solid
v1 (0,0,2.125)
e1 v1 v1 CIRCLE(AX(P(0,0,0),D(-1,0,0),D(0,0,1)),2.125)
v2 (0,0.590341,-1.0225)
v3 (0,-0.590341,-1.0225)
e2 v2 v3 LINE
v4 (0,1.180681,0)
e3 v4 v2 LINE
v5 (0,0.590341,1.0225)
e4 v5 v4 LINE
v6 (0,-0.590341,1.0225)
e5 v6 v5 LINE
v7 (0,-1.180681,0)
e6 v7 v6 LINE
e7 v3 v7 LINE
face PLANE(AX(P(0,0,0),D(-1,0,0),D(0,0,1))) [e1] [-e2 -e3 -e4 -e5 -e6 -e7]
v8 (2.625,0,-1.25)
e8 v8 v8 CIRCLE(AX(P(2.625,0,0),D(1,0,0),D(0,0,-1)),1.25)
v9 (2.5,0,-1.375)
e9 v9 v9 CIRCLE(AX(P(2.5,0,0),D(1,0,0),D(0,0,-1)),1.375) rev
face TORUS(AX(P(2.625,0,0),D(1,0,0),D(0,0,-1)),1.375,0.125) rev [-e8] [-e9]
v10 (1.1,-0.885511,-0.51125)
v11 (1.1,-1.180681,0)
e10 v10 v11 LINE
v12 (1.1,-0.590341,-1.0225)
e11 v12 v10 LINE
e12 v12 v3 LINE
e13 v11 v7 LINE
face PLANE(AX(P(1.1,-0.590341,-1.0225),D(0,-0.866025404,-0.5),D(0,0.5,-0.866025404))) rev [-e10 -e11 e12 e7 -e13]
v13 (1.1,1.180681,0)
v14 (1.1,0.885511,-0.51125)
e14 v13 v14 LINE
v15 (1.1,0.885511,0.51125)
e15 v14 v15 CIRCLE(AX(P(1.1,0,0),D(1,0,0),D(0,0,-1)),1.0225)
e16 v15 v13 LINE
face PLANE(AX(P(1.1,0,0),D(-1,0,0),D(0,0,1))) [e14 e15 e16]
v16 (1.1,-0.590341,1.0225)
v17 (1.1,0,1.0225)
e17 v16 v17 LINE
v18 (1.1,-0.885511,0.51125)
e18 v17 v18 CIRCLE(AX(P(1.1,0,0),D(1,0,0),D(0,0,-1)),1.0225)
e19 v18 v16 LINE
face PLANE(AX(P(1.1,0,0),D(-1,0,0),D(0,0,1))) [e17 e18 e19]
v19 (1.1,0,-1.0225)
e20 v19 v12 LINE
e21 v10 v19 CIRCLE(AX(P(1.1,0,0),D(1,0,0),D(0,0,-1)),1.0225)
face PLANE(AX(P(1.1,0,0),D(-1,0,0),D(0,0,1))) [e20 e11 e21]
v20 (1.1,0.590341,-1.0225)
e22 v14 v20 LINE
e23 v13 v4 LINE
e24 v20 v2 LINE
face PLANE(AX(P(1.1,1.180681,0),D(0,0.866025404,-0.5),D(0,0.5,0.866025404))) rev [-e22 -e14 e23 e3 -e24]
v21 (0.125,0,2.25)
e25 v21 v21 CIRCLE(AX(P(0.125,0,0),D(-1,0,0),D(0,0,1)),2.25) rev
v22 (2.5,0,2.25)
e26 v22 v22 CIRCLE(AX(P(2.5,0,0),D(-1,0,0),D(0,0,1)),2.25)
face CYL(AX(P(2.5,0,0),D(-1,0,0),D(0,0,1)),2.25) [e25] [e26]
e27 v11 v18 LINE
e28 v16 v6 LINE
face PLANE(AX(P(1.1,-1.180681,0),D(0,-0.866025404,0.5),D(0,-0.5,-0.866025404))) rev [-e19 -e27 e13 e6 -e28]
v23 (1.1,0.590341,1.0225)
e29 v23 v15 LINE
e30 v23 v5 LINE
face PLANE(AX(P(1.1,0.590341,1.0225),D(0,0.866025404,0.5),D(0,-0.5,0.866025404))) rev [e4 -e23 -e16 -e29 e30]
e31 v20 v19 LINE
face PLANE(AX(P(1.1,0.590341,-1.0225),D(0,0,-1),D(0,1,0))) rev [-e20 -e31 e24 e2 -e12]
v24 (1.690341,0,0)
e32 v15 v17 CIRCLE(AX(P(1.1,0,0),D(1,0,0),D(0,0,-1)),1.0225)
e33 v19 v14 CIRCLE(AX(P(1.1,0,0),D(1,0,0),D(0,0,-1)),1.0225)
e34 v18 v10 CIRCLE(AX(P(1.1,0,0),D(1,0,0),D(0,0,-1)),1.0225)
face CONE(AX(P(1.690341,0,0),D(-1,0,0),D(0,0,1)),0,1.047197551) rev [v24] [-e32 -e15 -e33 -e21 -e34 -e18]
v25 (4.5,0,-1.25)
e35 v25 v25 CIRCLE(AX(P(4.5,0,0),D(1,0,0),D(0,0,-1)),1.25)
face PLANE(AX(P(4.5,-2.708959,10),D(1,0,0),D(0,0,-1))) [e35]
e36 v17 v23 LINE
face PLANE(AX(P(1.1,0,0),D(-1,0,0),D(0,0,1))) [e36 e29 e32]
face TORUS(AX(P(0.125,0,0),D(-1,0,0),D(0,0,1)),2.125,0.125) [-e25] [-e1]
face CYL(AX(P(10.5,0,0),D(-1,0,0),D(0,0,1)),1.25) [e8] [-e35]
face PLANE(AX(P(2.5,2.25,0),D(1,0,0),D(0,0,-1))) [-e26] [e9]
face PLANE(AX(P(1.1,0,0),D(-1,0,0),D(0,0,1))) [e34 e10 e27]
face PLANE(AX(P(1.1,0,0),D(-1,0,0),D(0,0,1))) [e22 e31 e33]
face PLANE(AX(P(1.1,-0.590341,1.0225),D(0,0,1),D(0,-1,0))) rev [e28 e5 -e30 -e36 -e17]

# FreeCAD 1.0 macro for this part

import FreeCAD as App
import Part
import Sketcher
from FreeCAD import Vector
Q = App.Units.Quantity


def edges_at(feature, points):
    """Names of the edges that pass closest to the given points."""
    edges = feature.Shape.Edges
    near = lambda p: min(range(len(edges)), key=lambda i: edges[i].distToShape(Part.Vertex(*p))[0])
    return sorted({f"Edge{near(p) + 1}" for p in points})

doc = App.newDocument("Part")
body = doc.addObject("PartDesign::Body", "Body")

sketch1 = body.newObject("Sketcher::SketchObject", "Sketch")
sketch1.AttachmentSupport = (doc.getObject("XY_Plane"), [""])
sketch1.MapMode = "FlatFace"
sketch1.addGeometry(Part.LineSegment(Vector(2.5, 2.2, 0), Vector(2.5, 0, 0)), False)
sketch1.addGeometry(Part.LineSegment(Vector(2.5, 0, 0), Vector(0, 0, 0)), False)
sketch1.addGeometry(Part.LineSegment(Vector(0, 0, 0), Vector(0, 2.2, 0)), False)
sketch1.addGeometry(Part.LineSegment(Vector(0, 2.2, 0), Vector(2.5, 2.2, 0)), False)
sketch1.addConstraint(Sketcher.Constraint("Coincident", 0, 2, 1, 1))
sketch1.addConstraint(Sketcher.Constraint("Coincident", 1, 2, 2, 1))
sketch1.addConstraint(Sketcher.Constraint("Coincident", 2, 2, 3, 1))
sketch1.addConstraint(Sketcher.Constraint("Coincident", 3, 2, 0, 1))
sketch1.addConstraint(Sketcher.Constraint("Vertical", 0))
sketch1.addConstraint(Sketcher.Constraint("Horizontal", 1))
sketch1.addConstraint(Sketcher.Constraint("Vertical", 2))
sketch1.addConstraint(Sketcher.Constraint("Horizontal", 3))
sketch1.addConstraint(Sketcher.Constraint("Coincident", 1, 2, -1, 1))
sketch1.addConstraint(Sketcher.Constraint("DistanceX", 1, 2, 1, 1, Q("2.5 mm")))
sketch1.addConstraint(Sketcher.Constraint("DistanceY", 0, 2, 0, 1, Q("2.25 mm")))
revolution = body.newObject("PartDesign::Revolution", "Revolution")
revolution.Profile = sketch1
revolution.ReferenceAxis = (sketch1, ["H_Axis"])
revolution.Angle = 360

sketch2 = body.newObject("Sketcher::SketchObject", "Sketch001")
sketch2.AttachmentSupport = (doc.getObject("YZ_Plane"), [""])
sketch2.MapMode = "FlatFace"
sketch2.AttachmentOffset = App.Placement(Vector(0, 0, 2.5), App.Rotation())
sketch2.addGeometry(Part.Circle(Vector(0, 0, 0), Vector(0, 0, 1), 1.2), False)
sketch2.addConstraint(Sketcher.Constraint("Coincident", 0, 3, -1, 1))
sketch2.addConstraint(Sketcher.Constraint("Diameter", 0, Q("2.5 mm")))
pad1 = body.newObject("PartDesign::Pad", "Pad")
pad1.Profile = sketch2
pad1.Length = 8

sketch3 = body.newObject("Sketcher::SketchObject", "Sketch002")
sketch3.AttachmentSupport = (doc.getObject("YZ_Plane"), [""])
sketch3.MapMode = "FlatFace"
sketch3.addGeometry(Part.LineSegment(Vector(-0.6, -1, 0), Vector(-1.2, 0, 0)), False)
sketch3.addGeometry(Part.LineSegment(Vector(-1.2, 0, 0), Vector(-0.6, 1, 0)), False)
sketch3.addGeometry(Part.LineSegment(Vector(-0.6, 1, 0), Vector(0.6, 1, 0)), False)
sketch3.addGeometry(Part.LineSegment(Vector(0.6, 1, 0), Vector(1.2, 0, 0)), False)
sketch3.addGeometry(Part.LineSegment(Vector(1.2, 0, 0), Vector(0.6, -1, 0)), False)
sketch3.addGeometry(Part.LineSegment(Vector(0.6, -1, 0), Vector(-0.6, -1, 0)), False)
sketch3.addConstraint(Sketcher.Constraint("Coincident", 0, 2, 1, 1))
sketch3.addConstraint(Sketcher.Constraint("Coincident", 1, 2, 2, 1))
sketch3.addConstraint(Sketcher.Constraint("Coincident", 2, 2, 3, 1))
sketch3.addConstraint(Sketcher.Constraint("Coincident", 3, 2, 4, 1))
sketch3.addConstraint(Sketcher.Constraint("Coincident", 4, 2, 5, 1))
sketch3.addConstraint(Sketcher.Constraint("Coincident", 5, 2, 0, 1))
sketch3.addConstraint(Sketcher.Constraint("Horizontal", 2))
sketch3.addConstraint(Sketcher.Constraint("Horizontal", 5))
sketch3.addConstraint(Sketcher.Constraint("Symmetric", 0, 2, 3, 2, -1, 1))
sketch3.addConstraint(Sketcher.Constraint("Symmetric", 1, 2, 4, 2, -1, 1))
sketch3.addConstraint(Sketcher.Constraint("PointOnObject", 0, 2, -1))
sketch3.addConstraint(Sketcher.Constraint("Parallel", 0, 3))
sketch3.addConstraint(Sketcher.Constraint("Vertical", 2, 2, 4, 2))
sketch3.addConstraint(Sketcher.Constraint("Angle", 0, Q("120 deg")))
sketch3.addConstraint(Sketcher.Constraint("DistanceY", 4, 2, 2, 2, Q("2.045 mm")))
sketch3.addConstraint(Sketcher.Constraint("DistanceX", 2, 1, 2, 2, Q("1.180681 mm")))
pocket1 = body.newObject("PartDesign::Pocket", "Pocket")
pocket1.Profile = sketch3
pocket1.Length = 1.1
pocket1.Reversed = True

sketch4 = body.newObject("Sketcher::SketchObject", "Sketch003")
sketch4.AttachmentSupport = (doc.getObject("XY_Plane"), [""])
sketch4.MapMode = "FlatFace"
sketch4.addGeometry(Part.LineSegment(Vector(1.1, 1, 0), Vector(1.1, 0, 0)), False)
sketch4.addGeometry(Part.LineSegment(Vector(1.1, 0, 0), Vector(1.7, 0, 0)), False)
sketch4.addGeometry(Part.LineSegment(Vector(1.7, 0, 0), Vector(1.1, 1, 0)), False)
sketch4.addConstraint(Sketcher.Constraint("Coincident", 0, 2, 1, 1))
sketch4.addConstraint(Sketcher.Constraint("Coincident", 1, 2, 2, 1))
sketch4.addConstraint(Sketcher.Constraint("Coincident", 2, 2, 0, 1))
sketch4.addConstraint(Sketcher.Constraint("Vertical", 0))
sketch4.addConstraint(Sketcher.Constraint("Horizontal", 1))
sketch4.addConstraint(Sketcher.Constraint("PointOnObject", 0, 2, -1))
sketch4.addConstraint(Sketcher.Constraint("Angle", 2, Q("120 deg")))
sketch4.addConstraint(Sketcher.Constraint("DistanceX", -1, 1, 0, 2, Q("1.1 mm")))
sketch4.addConstraint(Sketcher.Constraint("DistanceY", 0, 2, 0, 1, Q("1.0225 mm")))
groove = body.newObject("PartDesign::Groove", "Groove")
groove.Profile = sketch4
groove.ReferenceAxis = (sketch4, ["H_Axis"])
groove.Angle = 360
doc.recompute()

chamfer = body.newObject("PartDesign::Chamfer", "Chamfer")
chamfer.Base = (groove, edges_at(groove, [(10.5, 0, 1.25)]))
chamfer.Size = 0.2535
doc.recompute()

fillet = body.newObject("PartDesign::Fillet", "Fillet")
fillet.Base = (chamfer, edges_at(chamfer, [(0, -2.25, 0), (2.5, 0, 1.25)]))
fillet.Radius = 0.125

sketch5 = body.newObject("Sketcher::SketchObject", "Sketch004")
sketch5.AttachmentSupport = (doc.getObject("XY_Plane"), [""])
sketch5.MapMode = "FlatFace"
sketch5.addGeometry(Part.LineSegment(Vector(4.5, 1.9, 0), Vector(4.5, -2.7, 0)), False)
sketch5.addGeometry(Part.LineSegment(Vector(4.5, -2.7, 0), Vector(10.5, -2.7, 0)), False)
sketch5.addGeometry(Part.LineSegment(Vector(10.5, -2.7, 0), Vector(10.5, 1.9, 0)), False)
sketch5.addGeometry(Part.LineSegment(Vector(10.5, 1.9, 0), Vector(4.5, 1.9, 0)), False)
sketch5.addConstraint(Sketcher.Constraint("Coincident", 0, 2, 1, 1))
sketch5.addConstraint(Sketcher.Constraint("Coincident", 1, 2, 2, 1))
sketch5.addConstraint(Sketcher.Constraint("Coincident", 2, 2, 3, 1))
sketch5.addConstraint(Sketcher.Constraint("Coincident", 3, 2, 0, 1))
sketch5.addConstraint(Sketcher.Constraint("Vertical", 0))
sketch5.addConstraint(Sketcher.Constraint("Horizontal", 1))
sketch5.addConstraint(Sketcher.Constraint("Vertical", 2))
sketch5.addConstraint(Sketcher.Constraint("Horizontal", 3))
sketch5.addConstraint(Sketcher.Constraint("DistanceX", 1, 1, 1, 2, Q("6 mm")))
sketch5.addConstraint(Sketcher.Constraint("DistanceX", -1, 1, 0, 2, Q("4.5 mm")))
sketch5.addConstraint(Sketcher.Constraint("DistanceY", 0, 2, 0, 1, Q("4.609791 mm")))
sketch5.addConstraint(Sketcher.Constraint("DistanceY", 0, 2, -1, 1, Q("2.708959 mm")))
pocket2 = body.newObject("PartDesign::Pocket", "Pocket001")
pocket2.Profile = sketch5
pocket2.Type = "ThroughAll"
pocket2.Midplane = True

doc.recompute()
